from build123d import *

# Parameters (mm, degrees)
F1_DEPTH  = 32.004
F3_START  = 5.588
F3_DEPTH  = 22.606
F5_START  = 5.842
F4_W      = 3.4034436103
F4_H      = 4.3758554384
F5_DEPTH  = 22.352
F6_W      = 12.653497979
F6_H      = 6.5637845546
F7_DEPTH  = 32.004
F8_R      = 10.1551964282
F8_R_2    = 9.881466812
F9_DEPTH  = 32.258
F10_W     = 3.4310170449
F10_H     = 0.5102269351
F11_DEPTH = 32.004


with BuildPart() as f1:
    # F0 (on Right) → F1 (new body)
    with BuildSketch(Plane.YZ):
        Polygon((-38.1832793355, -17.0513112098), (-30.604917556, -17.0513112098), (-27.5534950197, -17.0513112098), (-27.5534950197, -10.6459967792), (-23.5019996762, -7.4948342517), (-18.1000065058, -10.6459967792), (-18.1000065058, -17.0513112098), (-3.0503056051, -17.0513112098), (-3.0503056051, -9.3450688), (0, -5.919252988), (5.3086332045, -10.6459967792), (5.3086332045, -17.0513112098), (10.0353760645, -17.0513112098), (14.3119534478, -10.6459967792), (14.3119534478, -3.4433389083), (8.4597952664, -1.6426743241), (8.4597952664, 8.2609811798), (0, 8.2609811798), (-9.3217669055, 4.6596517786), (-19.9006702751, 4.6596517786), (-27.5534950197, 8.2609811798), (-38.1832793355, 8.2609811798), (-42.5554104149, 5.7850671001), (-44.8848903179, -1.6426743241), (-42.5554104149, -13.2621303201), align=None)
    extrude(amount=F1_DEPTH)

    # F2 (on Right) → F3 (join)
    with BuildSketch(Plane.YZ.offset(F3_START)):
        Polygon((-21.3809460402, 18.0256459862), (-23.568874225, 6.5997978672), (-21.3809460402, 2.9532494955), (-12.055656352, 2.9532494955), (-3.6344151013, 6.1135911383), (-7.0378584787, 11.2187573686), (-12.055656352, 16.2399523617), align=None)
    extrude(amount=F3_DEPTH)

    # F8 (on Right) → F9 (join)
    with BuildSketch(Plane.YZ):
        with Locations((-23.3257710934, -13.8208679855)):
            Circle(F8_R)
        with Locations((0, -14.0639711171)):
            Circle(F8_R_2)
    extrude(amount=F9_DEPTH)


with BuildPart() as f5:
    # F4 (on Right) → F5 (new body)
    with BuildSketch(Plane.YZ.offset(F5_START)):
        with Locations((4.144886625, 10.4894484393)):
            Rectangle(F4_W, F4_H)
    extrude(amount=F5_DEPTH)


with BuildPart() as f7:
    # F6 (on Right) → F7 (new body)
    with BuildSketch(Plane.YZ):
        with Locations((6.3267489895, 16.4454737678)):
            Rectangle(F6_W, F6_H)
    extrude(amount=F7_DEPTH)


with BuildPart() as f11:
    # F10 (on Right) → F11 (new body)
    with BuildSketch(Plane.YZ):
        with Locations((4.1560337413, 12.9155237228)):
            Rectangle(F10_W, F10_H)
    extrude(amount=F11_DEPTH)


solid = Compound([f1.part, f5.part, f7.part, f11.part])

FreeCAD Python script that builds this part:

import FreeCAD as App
import Part
import Sketcher

V = App.Vector
Q = App.Units.Quantity


def add_polygon(sketch, points):
    """Adds a closed chain of lines whose ends are joined by coincident constraints."""
    first, n = sketch.GeometryCount, len(points)
    for a, b in zip(points, points[1:] + points[:1]):
        sketch.addGeometry(Part.LineSegment(App.Vector(*a, 0), App.Vector(*b, 0)), False)
    for i in range(n):
        sketch.addConstraint(Sketcher.Constraint("Coincident", first + i, 2, first + (i + 1) % n, 1))

doc = App.newDocument("Part")
body = doc.addObject("PartDesign::Body", "Body")

# Sketch on YZ plane
sketch1 = body.newObject("Sketcher::SketchObject", "Sketch")
sketch1.AttachmentSupport = (doc.getObject("YZ_Plane"), [""])
sketch1.MapMode = "FlatFace"
add_polygon(sketch1, [(-38.2, -17.1), (-27.6, -17.1), (-27.6, -10.6), (-23.5, -7.5), (-18.1, -10.6), (-18.1, -17.1), (-3.1, -17.1), (-3.1, -9.3), (0, -5.9), (5.3, -10.6), (5.3, -17.1), (10, -17.1), (14.3, -10.6), (14.3, -3.4), (8.5, -1.6), (8.5, 8.3), (0, 8.3), (-9.3, 4.7), (-19.9, 4.7), (-27.6, 8.3), (-38.2, 8.3), (-42.6, 5.8), (-44.9, -1.6), (-42.6, -13.3)])  # lines 0-23
sketch1.addConstraint([
    Sketcher.Constraint("Horizontal", 0),
    Sketcher.Constraint("Vertical", 1),
    Sketcher.Constraint("Vertical", 4),
    Sketcher.Constraint("Horizontal", 5),
    Sketcher.Constraint("Vertical", 6),
    Sketcher.Constraint("Vertical", 9),
    Sketcher.Constraint("Horizontal", 10),
    Sketcher.Constraint("Vertical", 12),
    Sketcher.Constraint("Vertical", 14),
    Sketcher.Constraint("Horizontal", 15),
    Sketcher.Constraint("Horizontal", 17),
    Sketcher.Constraint("Horizontal", 19),
    Sketcher.Constraint("PointOnObject", 7, 2, -2),
    Sketcher.Constraint("PointOnObject", 15, 2, -2),
    Sketcher.Constraint("Perpendicular", 7, 8),
    Sketcher.Constraint("Horizontal", 1, 2, 3, 2),
    Sketcher.Constraint("Horizontal", 0, 2, 4, 2),
    Sketcher.Constraint("Horizontal", 3, 2, 8, 2),
    Sketcher.Constraint("Horizontal", 5, 2, 9, 2),
    Sketcher.Constraint("Horizontal", 8, 2, 11, 2),
    Sketcher.Constraint("Horizontal", 15, 2, 18, 2),
    Sketcher.Constraint("Horizontal", 13, 2, 21, 2),
    Sketcher.Constraint("Vertical", 1, 2, 18, 2),
    Sketcher.Constraint("Vertical", 20, 2, 22, 2),
    Sketcher.Constraint("Vertical", 19, 2, 23, 2),
    Sketcher.Constraint("DistanceX", 5, 1, 5, 2, Q("15.049701 mm")),
    Sketcher.Constraint("DistanceX", 3, 2, 8, 2, Q("0.9216 in")),
    Sketcher.Constraint("DistanceX", 13, 2, 12, 2, Q("0.2303999 in")),
    Sketcher.Constraint("DistanceY", 12, 2, 14, 2, Q("0.4608 in")),
    Sketcher.Constraint("DistanceX", 3, 2, 16, 2, Q("0.3456 in")),
    Sketcher.Constraint("DistanceY", 2, 2, 21, 2, Q("0.2304 in")),
    Sketcher.Constraint("Distance", 7, Q("4.587001 mm")),
    Sketcher.Constraint("DistanceX", 2, 2, -1, 1, Q("23.502 mm")),
    Sketcher.Constraint("DistanceX", 6, 2, 13, 2, Q("11.510101 mm")),
    Sketcher.Constraint("DistanceY", 2, 2, 20, 2, Q("13.279901 mm")),
    Sketcher.Constraint("Distance", 13, Q("6.12292 mm")),
    Sketcher.Constraint("Distance", 20, Q("5.024508 mm")),
    Sketcher.Constraint("Distance", 21, Q("7.78446 mm")),
    Sketcher.Constraint("DistanceX", 0, 1, 0, 2, Q("10.629784 mm")),
    Sketcher.Constraint("DistanceX", 10, 1, 10, 2, Q("4.726743 mm")),
    Sketcher.Constraint("DistanceX", 15, 2, 15, 1, Q("8.459795 mm")),
    Sketcher.Constraint("DistanceX", 17, 2, 17, 1, Q("10.578903 mm")),
    Sketcher.Constraint("DistanceY", 1, 1, 1, 2, Q("6.405314 mm")),
    Sketcher.Constraint("DistanceY", 12, 1, 12, 2, Q("7.202658 mm")),
    Sketcher.Constraint("DistanceY", 0, 2, -1, 1, Q("17.051311 mm")),
    Sketcher.Constraint("DistanceY", -1, 1, 16, 2, Q("4.659652 mm")),
    Sketcher.Constraint("DistanceX", 19, 2, -1, 1, Q("38.183279 mm")),
    Sketcher.Constraint("DistanceY", 22, 2, -1, 1, Q("13.26213 mm")),
])
pad1 = body.newObject("PartDesign::Pad", "Pad")
pad1.Profile = sketch1
pad1.Length = Q("1.26 in")

# Sketch on YZ plane
sketch2 = body.newObject("Sketcher::SketchObject", "Sketch001")
sketch2.AttachmentSupport = (doc.getObject("YZ_Plane"), [""])
sketch2.MapMode = "FlatFace"
sketch2.AttachmentOffset = App.Placement(V(0, 0, 0.22 * 25.4), App.Rotation())
add_polygon(sketch2, [(-21.380946, 18.025646), (-23.568874, 6.599798), (-21.380946, 2.953249), (-12.055656, 2.953249), (-3.634415, 6.113591), (-7.037858, 11.218757), (-12.055656, 16.239952)])  # lines 0-6
sketch2.addConstraint([
    Sketcher.Constraint("Horizontal", 2),
    Sketcher.Constraint("DistanceX", 2, 1, 2, 2, Q("9.32529 mm")),
    Sketcher.Constraint("Distance", 1, Q("4.252569 mm")),
    Sketcher.Constraint("Distance", 5, Q("7.09864 mm")),
    Sketcher.Constraint("Distance", 6, Q("9.494721 mm")),
    Sketcher.Constraint("DistanceY", -1, 1, 1, 2, Q("2.953249 mm")),
    Sketcher.Constraint("DistanceY", -1, 1, 3, 2, Q("6.113591 mm")),
    Sketcher.Constraint("DistanceX", 4, 2, -1, 1, Q("7.037858 mm")),
    Sketcher.Constraint("DistanceX", 0, 2, 1, 2, Q("2.187928 mm")),
    Sketcher.Constraint("DistanceX", 2, 2, 3, 2, Q("8.421241 mm")),
    Sketcher.Constraint("DistanceY", 0, 2, 4, 2, Q("4.61896 mm")),
    Sketcher.Constraint("DistanceX", 5, 2, 3, 2, Q("8.421241 mm")),
    Sketcher.Constraint("DistanceY", 3, 2, 5, 2, Q("10.126361 mm")),
    Sketcher.Constraint("DistanceX", 6, 2, 5, 2, Q("9.32529 mm")),
])
pad2 = body.newObject("PartDesign::Pad", "Pad001")
pad2.Profile = sketch2
pad2.Length = Q("0.89 in")

# Sketch on YZ plane
sketch3 = body.newObject("Sketcher::SketchObject", "Sketch002")
sketch3.AttachmentSupport = (doc.getObject("YZ_Plane"), [""])
sketch3.MapMode = "FlatFace"
sketch3.addGeometry([
    Part.Circle(V(-23, -14, 0), V(0, 0, 1), 10),
    Part.Circle(V(0, -14, 0), V(0, 0, 1), 10),
], False)
sketch3.addConstraint([
    Sketcher.Constraint("PointOnObject", 1, 3, -2),
    Sketcher.Constraint("Diameter", 0, Q("20.310393 mm")),
    Sketcher.Constraint("Diameter", 1, Q("19.762934 mm")),
    Sketcher.Constraint("DistanceX", 0, 3, -1, 1, Q("23.325771 mm")),
    Sketcher.Constraint("DistanceY", 1, 3, -1, 1, Q("14.063971 mm")),
    Sketcher.Constraint("DistanceY", 0, 3, -1, 1, Q("13.820868 mm")),
])
pad3 = body.newObject("PartDesign::Pad", "Pad002")
pad3.Profile = sketch3
pad3.Length = Q("1.27 in")
body2 = doc.addObject("PartDesign::Body", "Body001")

# Sketch on YZ plane
sketch4 = body2.newObject("Sketcher::SketchObject", "Sketch003")
sketch4.AttachmentSupport = (doc.getObject("YZ_Plane001"), [""])
sketch4.MapMode = "FlatFace"
sketch4.AttachmentOffset = App.Placement(V(0, 0, 0.23 * 25.4), App.Rotation())
add_polygon(sketch4, [(2.4, 12.7), (2.4, 8.3), (5.8, 8.3), (5.8, 12.7)])  # lines 0-3
sketch4.addConstraint([
    Sketcher.Constraint("Vertical", 0),
    Sketcher.Constraint("Horizontal", 1),
    Sketcher.Constraint("Vertical", 2),
    Sketcher.Constraint("Horizontal", 3),
    Sketcher.Constraint("DistanceX", 1, 1, 1, 2, Q("3.403444 mm")),
    Sketcher.Constraint("DistanceY", 0, 2, 0, 1, Q("4.375855 mm")),
    Sketcher.Constraint("DistanceY", -1, 1, 0, 2, Q("8.301521 mm")),
    Sketcher.Constraint("DistanceX", -1, 1, 1, 2, Q("5.846608 mm")),
])
pad4 = body2.newObject("PartDesign::Pad", "Pad003")
pad4.Profile = sketch4
pad4.Length = Q("0.88 in")
body3 = doc.addObject("PartDesign::Body", "Body002")

# Sketch on YZ plane
sketch5 = body3.newObject("Sketcher::SketchObject", "Sketch004")
sketch5.AttachmentSupport = (doc.getObject("YZ_Plane002"), [""])
sketch5.MapMode = "FlatFace"
add_polygon(sketch5, [(0, 20), (0, 13), (13, 13), (13, 20)])  # lines 0-3
sketch5.addConstraint([
    Sketcher.Constraint("Vertical", 0),
    Sketcher.Constraint("Horizontal", 1),
    Sketcher.Constraint("Vertical", 2),
    Sketcher.Constraint("Horizontal", 3),
    Sketcher.Constraint("PointOnObject", 0, 2, -2),
    Sketcher.Constraint("DistanceX", 1, 1, 1, 2, Q("12.653498 mm")),
    Sketcher.Constraint("DistanceY", 0, 2, 0, 1, Q("6.563785 mm")),
    Sketcher.Constraint("DistanceY", -1, 1, 0, 2, Q("13.163581 mm")),
])
pad5 = body3.newObject("PartDesign::Pad", "Pad004")
pad5.Profile = sketch5
pad5.Length = Q("1.26 in")
body4 = doc.addObject("PartDesign::Body", "Body003")

# Sketch on YZ plane
sketch6 = body4.newObject("Sketcher::SketchObject", "Sketch005")
sketch6.AttachmentSupport = (doc.getObject("YZ_Plane003"), [""])
sketch6.MapMode = "FlatFace"
add_polygon(sketch6, [(2.4, 13.2), (2.4, 12.7), (5.9, 12.7), (5.9, 13.2)])  # lines 0-3
sketch6.addConstraint([
    Sketcher.Constraint("Vertical", 0),
    Sketcher.Constraint("Horizontal", 1),
    Sketcher.Constraint("Vertical", 2),
    Sketcher.Constraint("Horizontal", 3),
    Sketcher.Constraint("DistanceX", 1, 1, 1, 2, Q("3.431017 mm")),
    Sketcher.Constraint("DistanceY", 0, 2, 0, 1, Q("0.510227 mm")),
    Sketcher.Constraint("DistanceY", -1, 1, 0, 2, Q("12.66041 mm")),
    Sketcher.Constraint("DistanceX", -1, 1, 0, 2, Q("2.440525 mm")),
])
pad6 = body4.newObject("PartDesign::Pad", "Pad005")
pad6.Profile = sketch6
pad6.Length = Q("1.26 in")

doc.recompute()
